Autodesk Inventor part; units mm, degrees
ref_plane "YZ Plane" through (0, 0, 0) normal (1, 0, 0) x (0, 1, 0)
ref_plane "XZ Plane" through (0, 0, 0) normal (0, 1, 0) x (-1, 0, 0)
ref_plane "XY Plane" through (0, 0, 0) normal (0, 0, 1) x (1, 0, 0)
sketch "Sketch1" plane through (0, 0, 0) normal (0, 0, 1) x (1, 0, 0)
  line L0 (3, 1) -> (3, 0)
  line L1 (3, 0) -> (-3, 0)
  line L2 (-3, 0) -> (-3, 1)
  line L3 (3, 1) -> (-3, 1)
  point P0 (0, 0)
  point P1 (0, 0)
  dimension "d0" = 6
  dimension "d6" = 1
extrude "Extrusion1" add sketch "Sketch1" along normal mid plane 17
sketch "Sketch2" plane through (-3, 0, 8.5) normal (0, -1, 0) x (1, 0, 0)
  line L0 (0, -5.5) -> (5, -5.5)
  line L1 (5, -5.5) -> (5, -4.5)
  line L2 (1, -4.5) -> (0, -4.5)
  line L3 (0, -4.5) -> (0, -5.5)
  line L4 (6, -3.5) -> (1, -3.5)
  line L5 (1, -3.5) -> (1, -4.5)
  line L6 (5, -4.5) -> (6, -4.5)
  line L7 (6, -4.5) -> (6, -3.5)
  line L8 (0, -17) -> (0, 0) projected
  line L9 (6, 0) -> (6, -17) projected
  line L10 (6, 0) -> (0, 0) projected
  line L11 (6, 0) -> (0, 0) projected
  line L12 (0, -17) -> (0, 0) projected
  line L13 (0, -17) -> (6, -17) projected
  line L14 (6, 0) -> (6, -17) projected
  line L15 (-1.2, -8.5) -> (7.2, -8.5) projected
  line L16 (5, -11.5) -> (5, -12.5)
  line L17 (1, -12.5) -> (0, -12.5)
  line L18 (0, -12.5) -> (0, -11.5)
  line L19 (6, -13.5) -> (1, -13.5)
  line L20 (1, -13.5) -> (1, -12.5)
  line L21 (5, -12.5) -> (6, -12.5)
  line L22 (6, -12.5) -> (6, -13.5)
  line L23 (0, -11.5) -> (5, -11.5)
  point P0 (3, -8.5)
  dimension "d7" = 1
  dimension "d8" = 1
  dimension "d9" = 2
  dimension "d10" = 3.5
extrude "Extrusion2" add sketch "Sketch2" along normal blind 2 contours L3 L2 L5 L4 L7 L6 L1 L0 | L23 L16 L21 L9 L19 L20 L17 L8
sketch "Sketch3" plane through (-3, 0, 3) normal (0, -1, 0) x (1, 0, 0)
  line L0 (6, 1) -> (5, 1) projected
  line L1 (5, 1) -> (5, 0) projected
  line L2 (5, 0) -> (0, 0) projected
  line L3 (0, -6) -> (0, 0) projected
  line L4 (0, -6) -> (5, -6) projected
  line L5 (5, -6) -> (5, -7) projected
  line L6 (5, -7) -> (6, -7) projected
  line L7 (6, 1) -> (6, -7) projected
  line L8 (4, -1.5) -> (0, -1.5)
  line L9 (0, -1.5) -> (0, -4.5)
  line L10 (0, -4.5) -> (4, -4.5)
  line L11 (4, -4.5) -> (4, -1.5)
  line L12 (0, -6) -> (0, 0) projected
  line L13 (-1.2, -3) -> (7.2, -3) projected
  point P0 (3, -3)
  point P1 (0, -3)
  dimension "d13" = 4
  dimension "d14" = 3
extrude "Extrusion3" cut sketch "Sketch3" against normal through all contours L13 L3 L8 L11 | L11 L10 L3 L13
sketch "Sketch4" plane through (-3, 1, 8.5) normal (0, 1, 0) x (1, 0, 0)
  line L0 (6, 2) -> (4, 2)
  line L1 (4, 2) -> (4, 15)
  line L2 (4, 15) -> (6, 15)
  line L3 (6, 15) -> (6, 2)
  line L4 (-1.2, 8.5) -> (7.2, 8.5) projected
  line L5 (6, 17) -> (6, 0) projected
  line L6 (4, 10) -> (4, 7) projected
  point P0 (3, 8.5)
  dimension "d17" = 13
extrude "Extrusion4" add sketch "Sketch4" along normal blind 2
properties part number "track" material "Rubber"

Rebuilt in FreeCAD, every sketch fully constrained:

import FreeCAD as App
import Part
import Sketcher

V = App.Vector
Q = App.Units.Quantity

doc = App.newDocument("Part")
body = doc.addObject("PartDesign::Body", "Body")

# Sketch on XY plane
sketch1 = doc.addObject("Sketcher::SketchObject", "Sketch")
body.addObject(sketch1)
sketch1.AttachmentSupport = (doc.XY_Plane, [""])
sketch1.MapMode = "FlatFace"
sketch1.addGeometry(Part.LineSegment(V(3, 0, 0), V(3, 1, 0)), False)
sketch1.addGeometry(Part.LineSegment(V(3, 1, 0), V(-3, 1, 0)), False)
sketch1.addGeometry(Part.LineSegment(V(-3, 1, 0), V(-3, 0, 0)), False)
sketch1.addGeometry(Part.LineSegment(V(-3, 0, 0), V(3, 0, 0)), False)
sketch1.addConstraint(Sketcher.Constraint("Coincident", 0, 2, 1, 1))
sketch1.addConstraint(Sketcher.Constraint("Coincident", 1, 2, 2, 1))
sketch1.addConstraint(Sketcher.Constraint("Coincident", 2, 2, 3, 1))
sketch1.addConstraint(Sketcher.Constraint("Coincident", 3, 2, 0, 1))
sketch1.addConstraint(Sketcher.Constraint("Vertical", 0))
sketch1.addConstraint(Sketcher.Constraint("Horizontal", 1))
sketch1.addConstraint(Sketcher.Constraint("Vertical", 2))
sketch1.addConstraint(Sketcher.Constraint("Horizontal", 3))
sketch1.addConstraint(Sketcher.Constraint("Symmetric", 2, 2, 3, 2, -1, 1))
sketch1.addConstraint(Sketcher.Constraint("DistanceX", 1, 2, 1, 1, Q("6 mm")))
sketch1.addConstraint(Sketcher.Constraint("DistanceY", 0, 1, 0, 2, Q("1 mm")))
pad1 = doc.addObject("PartDesign::Pad", "Pad")
body.addObject(pad1)
pad1.Profile = sketch1
pad1.Length = 17
pad1.Midplane = True

# Sketch on XZ plane
sketch2 = doc.addObject("Sketcher::SketchObject", "Sketch001")
body.addObject(sketch2)
sketch2.AttachmentSupport = (doc.XZ_Plane, [""])
sketch2.MapMode = "FlatFace"
sketch2.addGeometry(Part.LineSegment(V(-3, 4, 0), V(-3, 3, 0)), False)
sketch2.addGeometry(Part.LineSegment(V(-3, 3, 0), V(2, 3, 0)), False)
sketch2.addGeometry(Part.LineSegment(V(2, 3, 0), V(2, 4, 0)), False)
sketch2.addGeometry(Part.LineSegment(V(2, 4, 0), V(3, 4, 0)), False)
sketch2.addGeometry(Part.LineSegment(V(3, 4, 0), V(3, 5, 0)), False)
sketch2.addGeometry(Part.LineSegment(V(3, 5, 0), V(-2, 5, 0)), False)
sketch2.addGeometry(Part.LineSegment(V(-2, 5, 0), V(-2, 4, 0)), False)
sketch2.addGeometry(Part.LineSegment(V(-2, 4, 0), V(-3, 4, 0)), False)
sketch2.addGeometry(Part.LineSegment(V(2, -3, 0), V(-3, -3, 0)), False)
sketch2.addGeometry(Part.LineSegment(V(-3, -3, 0), V(-3, -4, 0)), False)
sketch2.addGeometry(Part.LineSegment(V(-3, -4, 0), V(-2, -4, 0)), False)
sketch2.addGeometry(Part.LineSegment(V(-2, -4, 0), V(-2, -5, 0)), False)
sketch2.addGeometry(Part.LineSegment(V(-2, -5, 0), V(3, -5, 0)), False)
sketch2.addGeometry(Part.LineSegment(V(3, -5, 0), V(3, -4, 0)), False)
sketch2.addGeometry(Part.LineSegment(V(3, -4, 0), V(2, -4, 0)), False)
sketch2.addGeometry(Part.LineSegment(V(2, -4, 0), V(2, -3, 0)), False)
sketch2.addConstraint(Sketcher.Constraint("Coincident", 0, 2, 1, 1))
sketch2.addConstraint(Sketcher.Constraint("Coincident", 1, 2, 2, 1))
sketch2.addConstraint(Sketcher.Constraint("Coincident", 2, 2, 3, 1))
sketch2.addConstraint(Sketcher.Constraint("Coincident", 3, 2, 4, 1))
sketch2.addConstraint(Sketcher.Constraint("Coincident", 4, 2, 5, 1))
sketch2.addConstraint(Sketcher.Constraint("Coincident", 5, 2, 6, 1))
sketch2.addConstraint(Sketcher.Constraint("Coincident", 6, 2, 7, 1))
sketch2.addConstraint(Sketcher.Constraint("Coincident", 7, 2, 0, 1))
sketch2.addConstraint(Sketcher.Constraint("Coincident", 8, 2, 9, 1))
sketch2.addConstraint(Sketcher.Constraint("Coincident", 9, 2, 10, 1))
sketch2.addConstraint(Sketcher.Constraint("Coincident", 10, 2, 11, 1))
sketch2.addConstraint(Sketcher.Constraint("Coincident", 11, 2, 12, 1))
sketch2.addConstraint(Sketcher.Constraint("Coincident", 12, 2, 13, 1))
sketch2.addConstraint(Sketcher.Constraint("Coincident", 13, 2, 14, 1))
sketch2.addConstraint(Sketcher.Constraint("Coincident", 14, 2, 15, 1))
sketch2.addConstraint(Sketcher.Constraint("Coincident", 15, 2, 8, 1))
sketch2.addConstraint(Sketcher.Constraint("Vertical", 0))
sketch2.addConstraint(Sketcher.Constraint("Horizontal", 1))
sketch2.addConstraint(Sketcher.Constraint("Vertical", 2))
sketch2.addConstraint(Sketcher.Constraint("Horizontal", 3))
sketch2.addConstraint(Sketcher.Constraint("Vertical", 4))
sketch2.addConstraint(Sketcher.Constraint("Horizontal", 5))
sketch2.addConstraint(Sketcher.Constraint("Vertical", 6))
sketch2.addConstraint(Sketcher.Constraint("Horizontal", 7))
sketch2.addConstraint(Sketcher.Constraint("Horizontal", 8))
sketch2.addConstraint(Sketcher.Constraint("Vertical", 9))
sketch2.addConstraint(Sketcher.Constraint("Horizontal", 10))
sketch2.addConstraint(Sketcher.Constraint("Vertical", 11))
sketch2.addConstraint(Sketcher.Constraint("Horizontal", 12))
sketch2.addConstraint(Sketcher.Constraint("Vertical", 13))
sketch2.addConstraint(Sketcher.Constraint("Horizontal", 14))
sketch2.addConstraint(Sketcher.Constraint("Vertical", 15))
sketch2.addConstraint(Sketcher.Constraint("Symmetric", 3, 2, 9, 2, -1, 1))
sketch2.addConstraint(Sketcher.Constraint("Symmetric", 7, 2, 13, 2, -1, 1))
sketch2.addConstraint(Sketcher.Constraint("Symmetric", 2, 2, 6, 2, -2))
sketch2.addConstraint(Sketcher.Constraint("Symmetric", 0, 2, 8, 2, -1))
sketch2.addConstraint(Sketcher.Constraint("Symmetric", 5, 2, 11, 2, -1))
sketch2.addConstraint(Sketcher.Constraint("Vertical", 2, 2, 14, 2))
sketch2.addConstraint(Sketcher.Constraint("Equal", 14, 0))
sketch2.addConstraint(Sketcher.Constraint("Equal", 2, 4))
sketch2.addConstraint(Sketcher.Constraint("DistanceX", 3, 1, 3, 2, Q("1 mm")))
sketch2.addConstraint(Sketcher.Constraint("DistanceX", -1, 1, 1, 2, Q("2 mm")))
sketch2.addConstraint(Sketcher.Constraint("DistanceY", -1, 1, 0, 2, Q("3 mm")))
pad2 = doc.addObject("PartDesign::Pad", "Pad001")
body.addObject(pad2)
pad2.Profile = sketch2
pad2.Length = 2

# Sketch on XZ plane
sketch3 = doc.addObject("Sketcher::SketchObject", "Sketch002")
body.addObject(sketch3)
sketch3.AttachmentSupport = (doc.XZ_Plane, [""])
sketch3.MapMode = "FlatFace"
sketch3.addGeometry(Part.LineSegment(V(-3, 1.5, 0), V(-3, -1.5, 0)), False)
sketch3.addGeometry(Part.LineSegment(V(-3, -1.5, 0), V(1, -1.5, 0)), False)
sketch3.addGeometry(Part.LineSegment(V(1, -1.5, 0), V(1, 1.5, 0)), False)
sketch3.addGeometry(Part.LineSegment(V(1, 1.5, 0), V(-3, 1.5, 0)), False)
sketch3.addConstraint(Sketcher.Constraint("Coincident", 0, 2, 1, 1))
sketch3.addConstraint(Sketcher.Constraint("Coincident", 1, 2, 2, 1))
sketch3.addConstraint(Sketcher.Constraint("Coincident", 2, 2, 3, 1))
sketch3.addConstraint(Sketcher.Constraint("Coincident", 3, 2, 0, 1))
sketch3.addConstraint(Sketcher.Constraint("Vertical", 0))
sketch3.addConstraint(Sketcher.Constraint("Horizontal", 1))
sketch3.addConstraint(Sketcher.Constraint("Vertical", 2))
sketch3.addConstraint(Sketcher.Constraint("Horizontal", 3))
sketch3.addConstraint(Sketcher.Constraint("DistanceX", 1, 1, 1, 2, Q("4 mm")))
sketch3.addConstraint(Sketcher.Constraint("DistanceY", 0, 2, 0, 1, Q("3 mm")))
sketch3.addConstraint(Sketcher.Constraint("DistanceX", 0, 2, -1, 1, Q("3 mm")))
sketch3.addConstraint(Sketcher.Constraint("DistanceY", 0, 2, -1, 1, Q("1.5 mm")))
pocket1 = doc.addObject("PartDesign::Pocket", "Pocket")
body.addObject(pocket1)
pocket1.Profile = sketch3
pocket1.Type = "ThroughAll"

# Sketch on XZ plane
sketch4 = doc.addObject("Sketcher::SketchObject", "Sketch003")
body.addObject(sketch4)
sketch4.AttachmentSupport = (doc.XZ_Plane, [""])
sketch4.MapMode = "FlatFace"
sketch4.AttachmentOffset = App.Placement(V(0, 0, -1), App.Rotation())
sketch4.addGeometry(Part.LineSegment(V(1, 6.5, 0), V(3, 6.5, 0)), False)
sketch4.addGeometry(Part.LineSegment(V(3, 6.5, 0), V(3, -6.5, 0)), False)
sketch4.addGeometry(Part.LineSegment(V(3, -6.5, 0), V(1, -6.5, 0)), False)
sketch4.addGeometry(Part.LineSegment(V(1, -6.5, 0), V(1, 6.5, 0)), False)
sketch4.addConstraint(Sketcher.Constraint("Coincident", 0, 2, 1, 1))
sketch4.addConstraint(Sketcher.Constraint("Coincident", 1, 2, 2, 1))
sketch4.addConstraint(Sketcher.Constraint("Coincident", 2, 2, 3, 1))
sketch4.addConstraint(Sketcher.Constraint("Coincident", 3, 2, 0, 1))
sketch4.addConstraint(Sketcher.Constraint("Horizontal", 0))
sketch4.addConstraint(Sketcher.Constraint("Vertical", 1))
sketch4.addConstraint(Sketcher.Constraint("Horizontal", 2))
sketch4.addConstraint(Sketcher.Constraint("Vertical", 3))
sketch4.addConstraint(Sketcher.Constraint("DistanceY", 1, 2, 1, 1, Q("13 mm")))
sketch4.addConstraint(Sketcher.Constraint("DistanceX", 0, 1, 0, 2, Q("2 mm")))
sketch4.addConstraint(Sketcher.Constraint("DistanceX", -1, 1, 0, 2, Q("3 mm")))
sketch4.addConstraint(Sketcher.Constraint("DistanceY", -1, 1, 0, 2, Q("6.5 mm")))
pad3 = doc.addObject("PartDesign::Pad", "Pad002")
body.addObject(pad3)
pad3.Profile = sketch4
pad3.Length = 2
pad3.Reversed = True

doc.recompute()
